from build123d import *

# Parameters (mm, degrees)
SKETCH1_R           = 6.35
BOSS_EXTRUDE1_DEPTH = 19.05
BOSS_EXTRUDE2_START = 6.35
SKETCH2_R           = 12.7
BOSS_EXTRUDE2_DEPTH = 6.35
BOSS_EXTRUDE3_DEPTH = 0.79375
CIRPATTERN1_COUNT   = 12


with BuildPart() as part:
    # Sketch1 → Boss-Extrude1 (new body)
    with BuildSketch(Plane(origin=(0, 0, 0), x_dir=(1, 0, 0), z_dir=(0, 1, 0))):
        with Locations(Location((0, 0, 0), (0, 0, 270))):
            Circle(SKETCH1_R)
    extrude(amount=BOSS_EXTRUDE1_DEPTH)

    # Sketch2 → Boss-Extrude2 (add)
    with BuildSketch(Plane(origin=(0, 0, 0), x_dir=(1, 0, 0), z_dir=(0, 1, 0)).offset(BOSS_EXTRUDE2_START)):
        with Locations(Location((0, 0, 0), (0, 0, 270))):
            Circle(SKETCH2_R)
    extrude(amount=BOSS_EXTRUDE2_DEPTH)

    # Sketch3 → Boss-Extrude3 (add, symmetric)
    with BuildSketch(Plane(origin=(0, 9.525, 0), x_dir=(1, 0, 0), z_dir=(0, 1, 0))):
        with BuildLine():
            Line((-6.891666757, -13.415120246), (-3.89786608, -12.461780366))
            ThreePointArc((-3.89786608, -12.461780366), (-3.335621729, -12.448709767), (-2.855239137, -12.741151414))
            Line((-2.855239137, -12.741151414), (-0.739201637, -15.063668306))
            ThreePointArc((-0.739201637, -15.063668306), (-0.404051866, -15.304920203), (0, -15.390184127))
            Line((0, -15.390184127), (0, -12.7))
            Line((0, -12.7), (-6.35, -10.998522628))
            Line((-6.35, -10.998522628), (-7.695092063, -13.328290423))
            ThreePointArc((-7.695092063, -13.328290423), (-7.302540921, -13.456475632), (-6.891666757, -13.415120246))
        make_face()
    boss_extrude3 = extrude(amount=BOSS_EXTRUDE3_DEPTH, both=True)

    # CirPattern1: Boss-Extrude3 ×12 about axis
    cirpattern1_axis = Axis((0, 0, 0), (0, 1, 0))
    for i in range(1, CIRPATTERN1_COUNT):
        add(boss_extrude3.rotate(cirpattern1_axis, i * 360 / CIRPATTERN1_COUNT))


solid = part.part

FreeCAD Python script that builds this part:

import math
import FreeCAD as App
import Part
import Sketcher
from FreeCAD import Vector
Q = App.Units.Quantity

doc = App.newDocument("Part")
body = doc.addObject("PartDesign::Body", "Body")

# Sketch on XZ plane
sketch1 = doc.addObject("Sketcher::SketchObject", "Sketch")
body.addObject(sketch1)
sketch1.AttachmentSupport = (doc.XZ_Plane, [""])
sketch1.MapMode = "FlatFace"
sketch1.addGeometry(Part.Circle(Vector(0, 0, 0), Vector(0, 0, 1), 6.35), False)
sketch1.addConstraint(Sketcher.Constraint("Coincident", 0, 3, -1, 1))
sketch1.addConstraint(Sketcher.Constraint("Diameter", 0, Q("0.5 in")))
pad1 = doc.addObject("PartDesign::Pad", "Pad")
body.addObject(pad1)
pad1.Profile = sketch1
pad1.Length = Q("0.75 in")
pad1.Reversed = True

# Sketch on XZ plane
sketch2 = doc.addObject("Sketcher::SketchObject", "Sketch001")
body.addObject(sketch2)
sketch2.AttachmentSupport = (doc.XZ_Plane, [""])
sketch2.MapMode = "FlatFace"
sketch2.AttachmentOffset = App.Placement(Vector(0, 0, -0.25 * 25.4), App.Rotation())
sketch2.addGeometry(Part.Circle(Vector(0, 0, 0), Vector(0, 0, 1), 12.7), False)
sketch2.addConstraint(Sketcher.Constraint("Coincident", 0, 3, -1, 1))
sketch2.addConstraint(Sketcher.Constraint("Diameter", 0, Q("1 in")))
pad2 = doc.addObject("PartDesign::Pad", "Pad001")
body.addObject(pad2)
pad2.Profile = sketch2
pad2.Length = Q("0.25 in")
pad2.Reversed = True

# Sketch on XZ plane
sketch3 = doc.addObject("Sketcher::SketchObject", "Sketch002")
body.addObject(sketch3)
sketch3.AttachmentSupport = (doc.XZ_Plane, [""])
sketch3.MapMode = "FlatFace"
sketch3.AttachmentOffset = App.Placement(Vector(0, 0, -0.375 * 25.4), App.Rotation())
sketch3.addGeometry(Part.LineSegment(Vector(-6.891667, 13.41512, 0), Vector(-3.897866, 12.46178, 0)), False)
sketch3.addGeometry(Part.ArcOfCircle(Part.Circle(Vector(-3.594441, 13.414636, 0), Vector(0, 0, 1), 1), math.radians(-107.663452), math.radians(-42.336548)), False)
sketch3.addGeometry(Part.LineSegment(Vector(-2.855239, 12.741151, 0), Vector(-0.739202, 15.063668, 0)), False)
sketch3.addGeometry(Part.ArcOfCircle(Part.Circle(Vector(0, 14.390184, 0), Vector(0, 0, 1), 1), math.radians(90), math.radians(137.663452)), False)
sketch3.addGeometry(Part.LineSegment(Vector(0, 15.390184, 0), Vector(0, 12.7, 0)), False)
sketch3.addGeometry(Part.LineSegment(Vector(0, 12.7, 0), Vector(-6.35, 10.998523, 0)), False)
sketch3.addGeometry(Part.LineSegment(Vector(-6.35, 10.998523, 0), Vector(-7.695092, 13.32829, 0)), False)
sketch3.addGeometry(Part.ArcOfCircle(Part.Circle(Vector(-7.195092, 12.462265, 0), Vector(0, 0, 1), 1), math.radians(72.336548), math.radians(120)), False)
sketch3.addConstraint(Sketcher.Constraint("Tangent", 0, 2, 1, 1))
sketch3.addConstraint(Sketcher.Constraint("Tangent", 1, 2, 2, 1))
sketch3.addConstraint(Sketcher.Constraint("Tangent", 2, 2, 3, 2))
sketch3.addConstraint(Sketcher.Constraint("Coincident", 3, 1, 4, 1))
sketch3.addConstraint(Sketcher.Constraint("Coincident", 4, 2, 5, 1))
sketch3.addConstraint(Sketcher.Constraint("Coincident", 5, 2, 6, 1))
sketch3.addConstraint(Sketcher.Constraint("Coincident", 6, 2, 7, 2))
sketch3.addConstraint(Sketcher.Constraint("Tangent", 7, 1, 0, 1))
sketch3.addConstraint(Sketcher.Constraint("Vertical", 4))
sketch3.addConstraint(Sketcher.Constraint("Equal", 1, 3))
sketch3.addConstraint(Sketcher.Constraint("Equal", 3, 7))
sketch3.addConstraint(Sketcher.Constraint("PointOnObject", 3, 3, -2))
sketch3.addConstraint(Sketcher.Constraint("PointOnObject", 3, 1, -2))
sketch3.addConstraint(Sketcher.Constraint("Equal", 0, 2))
sketch3.addConstraint(Sketcher.Constraint("Angle", 5, Q("-165 deg")))
sketch3.addConstraint(Sketcher.Constraint("Angle", 6, Q("120 deg")))
sketch3.addConstraint(Sketcher.Constraint("DistanceY", -1, 1, 4, 2, Q("0.5 in")))
sketch3.addConstraint(Sketcher.Constraint("DistanceX", 5, 2, -1, 1, Q("0.25 in")))
sketch3.addConstraint(Sketcher.Constraint("Radius", 1, 1.0))
sketch3.addConstraint(Sketcher.Constraint("DistanceX", 2, 2, -1, 1, 0.739202))
sketch3.addConstraint(Sketcher.Constraint("DistanceX", 6, 2, 7, 3, 0.5))
sketch3.addConstraint(Sketcher.Constraint("DistanceX", 7, 1, 0, 2, 2.993801))
sketch3.addConstraint(Sketcher.Constraint("DistanceY", 4, 2, 4, 1, 2.690184))
pad3 = doc.addObject("PartDesign::Pad", "Pad002")
body.addObject(pad3)
pad3.Profile = sketch3
pad3.Length = Q("0.0625 in")
pad3.Midplane = True
doc.recompute()

polarpattern = doc.addObject("PartDesign::PolarPattern", "PolarPattern")
body.addObject(polarpattern)
polarpattern.Originals = [pad3]
polarpattern.Axis = (doc.Y_Axis, [""])
polarpattern.Angle = 360
polarpattern.Occurrences = 12
body.Tip = polarpattern

doc.recompute()
